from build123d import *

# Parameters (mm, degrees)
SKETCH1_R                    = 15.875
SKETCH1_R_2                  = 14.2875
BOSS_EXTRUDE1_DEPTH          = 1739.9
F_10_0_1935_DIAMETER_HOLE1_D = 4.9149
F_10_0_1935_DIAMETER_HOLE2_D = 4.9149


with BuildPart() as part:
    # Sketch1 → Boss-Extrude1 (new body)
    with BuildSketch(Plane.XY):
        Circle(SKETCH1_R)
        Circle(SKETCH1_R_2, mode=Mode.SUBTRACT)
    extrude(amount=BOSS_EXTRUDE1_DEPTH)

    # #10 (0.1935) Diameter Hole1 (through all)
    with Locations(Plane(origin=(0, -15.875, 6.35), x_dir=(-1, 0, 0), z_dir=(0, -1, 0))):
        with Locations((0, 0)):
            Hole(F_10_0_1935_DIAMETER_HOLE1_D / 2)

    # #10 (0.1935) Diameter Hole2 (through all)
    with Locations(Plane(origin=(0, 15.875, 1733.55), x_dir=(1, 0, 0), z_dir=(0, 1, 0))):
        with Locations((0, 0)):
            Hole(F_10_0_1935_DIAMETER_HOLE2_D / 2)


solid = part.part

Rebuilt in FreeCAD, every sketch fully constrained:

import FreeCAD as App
import Part
import Sketcher
from FreeCAD import Vector
Q = App.Units.Quantity

doc = App.newDocument("Part")
body = doc.addObject("PartDesign::Body", "Body")

# Sketch on XY plane
sketch1 = doc.addObject("Sketcher::SketchObject", "Sketch")
body.addObject(sketch1)
sketch1.AttachmentSupport = (doc.XY_Plane, [""])
sketch1.MapMode = "FlatFace"
sketch1.addGeometry([
    Part.Circle(Vector(0, 0, 0), Vector(0, 0, 1), 16),
    Part.Circle(Vector(0, 0, 0), Vector(0, 0, 1), 14),
], False)
sketch1.addConstraint([
    Sketcher.Constraint("Coincident", 0, 3, -1, 1),
    Sketcher.Constraint("Coincident", 1, 3, -1, 1),
    Sketcher.Constraint("Diameter", 0, Q("1.25 in")),
    Sketcher.Constraint("Diameter", 1, Q("1.125 in")),
])
pad1 = doc.addObject("PartDesign::Pad", "Pad")
body.addObject(pad1)
pad1.Profile = sketch1
pad1.Length = Q("68.5 in")

# Sketch on XZ plane
sketch2 = doc.addObject("Sketcher::SketchObject", "Sketch001")
body.addObject(sketch2)
sketch2.AttachmentSupport = (doc.XZ_Plane, [""])
sketch2.MapMode = "FlatFace"
sketch2.AttachmentOffset = App.Placement(Vector(0, 0, 0.625 * 25.4), App.Rotation())
sketch2.addGeometry(Part.Circle(Vector(0, 6.3, 0), Vector(0, 0, 1), 2.5), False)
sketch2.addConstraint([
    Sketcher.Constraint("PointOnObject", 0, 3, -2),
    Sketcher.Constraint("Diameter", 0, Q("0.1935 in")),
    Sketcher.Constraint("DistanceY", -1, 1, 0, 3, Q("0.25 in")),
])
doc.recompute()
hole = doc.addObject("PartDesign::Hole", "Hole")
body.addObject(hole)
hole.Profile = sketch2
hole.ThreadType = "None"
hole.Diameter = Q("0.1935 in")
hole.DepthType = "ThroughAll"

# Sketch on XZ plane
sketch3 = doc.addObject("Sketcher::SketchObject", "Sketch002")
body.addObject(sketch3)
sketch3.AttachmentSupport = (doc.XZ_Plane, [""])
sketch3.MapMode = "FlatFace"
sketch3.AttachmentOffset = App.Placement(Vector(0, 0, -0.625 * 25.4), App.Rotation())
sketch3.addGeometry(Part.Circle(Vector(0, 1733.5, 0), Vector(0, 0, 1), 2.5), False)
sketch3.addConstraint([
    Sketcher.Constraint("PointOnObject", 0, 3, -2),
    Sketcher.Constraint("Diameter", 0, Q("0.1935 in")),
    Sketcher.Constraint("DistanceY", -1, 1, 0, 3, Q("68.25 in")),
])
doc.recompute()
hole2 = doc.addObject("PartDesign::Hole", "Hole001")
body.addObject(hole2)
hole2.Profile = sketch3
hole2.ThreadType = "None"
hole2.Diameter = Q("0.1935 in")
hole2.DepthType = "ThroughAll"
hole2.Reversed = True

doc.recompute()
